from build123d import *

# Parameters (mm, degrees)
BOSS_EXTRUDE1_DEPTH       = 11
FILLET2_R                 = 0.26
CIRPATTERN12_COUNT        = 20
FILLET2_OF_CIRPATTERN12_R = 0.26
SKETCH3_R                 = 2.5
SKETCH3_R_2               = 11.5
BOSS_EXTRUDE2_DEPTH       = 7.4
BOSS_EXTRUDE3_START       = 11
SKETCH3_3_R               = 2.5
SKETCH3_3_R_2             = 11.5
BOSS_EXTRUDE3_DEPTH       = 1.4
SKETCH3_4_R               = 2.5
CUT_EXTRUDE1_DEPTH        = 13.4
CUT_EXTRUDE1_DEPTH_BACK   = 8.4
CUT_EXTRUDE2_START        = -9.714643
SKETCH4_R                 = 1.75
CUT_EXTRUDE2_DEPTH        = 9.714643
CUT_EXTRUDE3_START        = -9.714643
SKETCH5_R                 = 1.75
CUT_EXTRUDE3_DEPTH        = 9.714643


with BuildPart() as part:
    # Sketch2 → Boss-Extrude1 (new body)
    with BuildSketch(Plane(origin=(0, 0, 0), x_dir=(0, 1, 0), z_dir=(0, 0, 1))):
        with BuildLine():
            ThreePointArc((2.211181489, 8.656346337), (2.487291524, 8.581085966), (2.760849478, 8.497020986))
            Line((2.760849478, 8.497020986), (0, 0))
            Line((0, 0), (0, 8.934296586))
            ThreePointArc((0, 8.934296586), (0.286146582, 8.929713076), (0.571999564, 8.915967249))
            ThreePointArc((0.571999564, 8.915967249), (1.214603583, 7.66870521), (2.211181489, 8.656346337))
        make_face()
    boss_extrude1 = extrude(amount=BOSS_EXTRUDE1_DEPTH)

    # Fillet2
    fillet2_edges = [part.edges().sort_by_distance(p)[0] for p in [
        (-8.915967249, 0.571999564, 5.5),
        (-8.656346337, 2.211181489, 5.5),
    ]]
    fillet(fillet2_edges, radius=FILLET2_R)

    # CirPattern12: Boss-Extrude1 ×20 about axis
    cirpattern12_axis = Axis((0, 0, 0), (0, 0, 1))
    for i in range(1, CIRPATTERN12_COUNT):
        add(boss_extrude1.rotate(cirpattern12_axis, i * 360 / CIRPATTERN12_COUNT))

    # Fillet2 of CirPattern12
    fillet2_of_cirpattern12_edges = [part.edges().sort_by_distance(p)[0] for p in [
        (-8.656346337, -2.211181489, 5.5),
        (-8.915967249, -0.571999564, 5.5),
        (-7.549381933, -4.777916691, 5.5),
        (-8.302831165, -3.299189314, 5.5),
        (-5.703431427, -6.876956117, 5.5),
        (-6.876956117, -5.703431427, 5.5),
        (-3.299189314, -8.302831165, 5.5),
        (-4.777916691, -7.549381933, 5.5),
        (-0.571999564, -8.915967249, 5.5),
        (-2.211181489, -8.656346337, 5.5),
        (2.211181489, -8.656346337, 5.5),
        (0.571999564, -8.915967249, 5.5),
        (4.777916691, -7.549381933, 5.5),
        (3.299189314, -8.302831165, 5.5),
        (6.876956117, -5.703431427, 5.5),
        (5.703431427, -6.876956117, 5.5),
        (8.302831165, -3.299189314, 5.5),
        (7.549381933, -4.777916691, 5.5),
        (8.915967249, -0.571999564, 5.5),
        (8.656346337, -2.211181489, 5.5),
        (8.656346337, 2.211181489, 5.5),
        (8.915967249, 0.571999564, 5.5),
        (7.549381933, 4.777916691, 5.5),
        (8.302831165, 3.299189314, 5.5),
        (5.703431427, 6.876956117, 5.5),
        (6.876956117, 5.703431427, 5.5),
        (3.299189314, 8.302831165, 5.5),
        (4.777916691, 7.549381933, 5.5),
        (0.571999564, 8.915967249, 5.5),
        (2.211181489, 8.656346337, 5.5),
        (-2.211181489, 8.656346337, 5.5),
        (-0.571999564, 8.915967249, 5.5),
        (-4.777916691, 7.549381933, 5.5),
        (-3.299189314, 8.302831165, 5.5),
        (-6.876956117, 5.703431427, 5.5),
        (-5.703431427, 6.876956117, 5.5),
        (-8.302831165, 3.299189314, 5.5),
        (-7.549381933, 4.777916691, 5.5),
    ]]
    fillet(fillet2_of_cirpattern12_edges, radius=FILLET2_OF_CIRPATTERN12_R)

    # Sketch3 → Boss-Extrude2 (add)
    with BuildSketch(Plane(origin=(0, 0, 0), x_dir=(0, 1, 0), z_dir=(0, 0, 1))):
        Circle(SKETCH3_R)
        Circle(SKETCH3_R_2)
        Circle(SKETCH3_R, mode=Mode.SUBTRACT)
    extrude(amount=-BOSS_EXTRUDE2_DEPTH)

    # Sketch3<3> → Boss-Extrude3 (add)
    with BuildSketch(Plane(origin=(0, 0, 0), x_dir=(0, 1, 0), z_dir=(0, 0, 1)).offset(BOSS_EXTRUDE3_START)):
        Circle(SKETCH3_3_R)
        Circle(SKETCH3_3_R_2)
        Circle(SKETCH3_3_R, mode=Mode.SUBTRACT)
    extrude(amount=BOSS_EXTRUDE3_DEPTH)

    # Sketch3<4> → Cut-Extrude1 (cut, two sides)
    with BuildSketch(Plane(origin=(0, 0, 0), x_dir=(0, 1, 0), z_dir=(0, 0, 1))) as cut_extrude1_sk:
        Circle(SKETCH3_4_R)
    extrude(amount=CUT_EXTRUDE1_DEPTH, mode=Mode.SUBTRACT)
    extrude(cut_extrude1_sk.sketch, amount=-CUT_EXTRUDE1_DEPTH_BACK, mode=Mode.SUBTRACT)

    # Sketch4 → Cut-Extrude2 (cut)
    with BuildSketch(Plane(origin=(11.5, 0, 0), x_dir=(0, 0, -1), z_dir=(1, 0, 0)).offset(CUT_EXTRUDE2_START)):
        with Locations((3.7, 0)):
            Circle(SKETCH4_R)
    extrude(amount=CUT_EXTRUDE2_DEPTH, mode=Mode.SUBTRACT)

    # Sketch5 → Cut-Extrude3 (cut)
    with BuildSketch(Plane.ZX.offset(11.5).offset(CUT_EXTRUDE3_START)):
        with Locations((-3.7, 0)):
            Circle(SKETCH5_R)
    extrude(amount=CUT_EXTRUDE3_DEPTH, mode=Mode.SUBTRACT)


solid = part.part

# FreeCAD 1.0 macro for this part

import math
import FreeCAD as App
import Part
import Sketcher
from FreeCAD import Vector
Q = App.Units.Quantity


def edges_at(feature, points):
    """Names of the edges that pass closest to the given points."""
    edges = feature.Shape.Edges
    near = lambda p: min(range(len(edges)), key=lambda i: edges[i].distToShape(Part.Vertex(*p))[0])
    return sorted({f"Edge{near(p) + 1}" for p in points})

doc = App.newDocument("Part")
body = doc.addObject("PartDesign::Body", "Body")

# Sketch on XY plane
sketch1 = doc.addObject("Sketcher::SketchObject", "Sketch")
body.addObject(sketch1)
sketch1.AttachmentSupport = (doc.XY_Plane, [""])
sketch1.MapMode = "FlatFace"
sketch1.addGeometry([
    Part.ArcOfCircle(Part.Circle(Vector(0, 0, 0), Vector(0, 0, 1), 8.9), math.radians(162), math.radians(165.67)),  # 0
    Part.ArcOfCircle(Part.Circle(Vector(-8.5, 1.4, 0), Vector(0, 0, 1), 0.9), math.radians(-116), math.radians(98)),  # 1
    Part.ArcOfCircle(Part.Circle(Vector(0, 0, 0), Vector(0, 0, 1), 8.9), math.radians(176.33), math.radians(180)),  # 2
    Part.LineSegment(Vector(-8.9, 0, 0), Vector(0, 0, 0)),  # 3
    Part.LineSegment(Vector(0, 0, 0), Vector(-8.5, 2.8, 0)),  # 4
], False)
sketch1.addConstraint([
    Sketcher.Constraint("Coincident", 0, 2, 1, 2),
    Sketcher.Constraint("Coincident", 1, 1, 2, 1),
    Sketcher.Constraint("Coincident", 2, 2, 3, 1),
    Sketcher.Constraint("Coincident", 3, 2, 4, 1),
    Sketcher.Constraint("Coincident", 4, 2, 0, 1),
    Sketcher.Constraint("Horizontal", 3),
    Sketcher.Constraint("Coincident", 0, 3, -1, 1),
    Sketcher.Constraint("Coincident", 2, 3, -1, 1),
    Sketcher.Constraint("Coincident", 3, 2, -1, 1),
    Sketcher.Constraint("Equal", 0, 2),
    Sketcher.Constraint("Angle", 4, Q("162 deg")),
    Sketcher.Constraint("Radius", 1, 0.87),
    Sketcher.Constraint("DistanceY", -1, 1, 1, 1, 0.572),
    Sketcher.Constraint("Radius", 0, 8.934296),
    Sketcher.Constraint("DistanceY", -1, 1, 1, 3, 1.350702),
])
pad1 = doc.addObject("PartDesign::Pad", "Pad")
body.addObject(pad1)
pad1.Profile = sketch1
pad1.Length = 11
doc.recompute()

fillet = doc.addObject("PartDesign::Fillet", "Fillet")
body.addObject(fillet)
fillet.Base = (pad1, edges_at(pad1, [(-8.916, 0.572, 5.5), (-8.656, 2.211, 5.5)]))
fillet.Radius = 0.26
doc.recompute()

polarpattern = doc.addObject("PartDesign::PolarPattern", "PolarPattern")
body.addObject(polarpattern)
polarpattern.Originals = [pad1]
polarpattern.Axis = (doc.Z_Axis, [""])
polarpattern.Angle = 360
polarpattern.Occurrences = 20
body.Tip = polarpattern
doc.recompute()

fillet2 = doc.addObject("PartDesign::Fillet", "Fillet001")
body.addObject(fillet2)
fillet2.Base = (polarpattern, edges_at(polarpattern, [
    (-8.656, -2.211, 5.5),
    (-8.916, -0.572, 5.5),
    (-7.549, -4.778, 5.5),
    (-8.303, -3.299, 5.5),
    (-5.703, -6.877, 5.5),
    (-6.877, -5.703, 5.5),
    (-3.299, -8.303, 5.5),
    (-4.778, -7.549, 5.5),
    (-0.572, -8.916, 5.5),
    (-2.211, -8.656, 5.5),
    (2.211, -8.656, 5.5),
    (0.572, -8.916, 5.5),
    (4.778, -7.549, 5.5),
    (3.299, -8.303, 5.5),
    (6.877, -5.703, 5.5),
    (5.703, -6.877, 5.5),
    (8.303, -3.299, 5.5),
    (7.549, -4.778, 5.5),
    (8.916, -0.572, 5.5),
    (8.656, -2.211, 5.5),
    (8.656, 2.211, 5.5),
    (8.916, 0.572, 5.5),
    (7.549, 4.778, 5.5),
    (8.303, 3.299, 5.5),
    (5.703, 6.877, 5.5),
    (6.877, 5.703, 5.5),
    (3.299, 8.303, 5.5),
    (4.778, 7.549, 5.5),
    (0.572, 8.916, 5.5),
    (2.211, 8.656, 5.5),
    (-2.211, 8.656, 5.5),
    (-0.572, 8.916, 5.5),
    (-4.778, 7.549, 5.5),
    (-3.299, 8.303, 5.5),
    (-6.877, 5.703, 5.5),
    (-5.703, 6.877, 5.5),
    (-8.303, 3.299, 5.5),
    (-7.549, 4.778, 5.5),
]))
fillet2.Radius = 0.26

# Sketch on XY plane
sketch2 = doc.addObject("Sketcher::SketchObject", "Sketch001")
body.addObject(sketch2)
sketch2.AttachmentSupport = (doc.XY_Plane, [""])
sketch2.MapMode = "FlatFace"
sketch2.addGeometry([
    Part.Circle(Vector(0, 0, 0), Vector(0, 0, 1), 11.5),
    Part.Circle(Vector(0, 0, 0), Vector(0, 0, 1), 2.5),
], False)
sketch2.addConstraint([
    Sketcher.Constraint("Coincident", 0, 3, -1, 1),
    Sketcher.Constraint("Coincident", 1, 3, -1, 1),
    Sketcher.Constraint("Diameter", 0, 23.0),
    Sketcher.Constraint("Diameter", 1, 5.0),
])
pad2 = doc.addObject("PartDesign::Pad", "Pad001")
body.addObject(pad2)
pad2.Profile = sketch2
pad2.Length = 7.4
pad2.Reversed = True

# Sketch on XY plane
sketch3 = doc.addObject("Sketcher::SketchObject", "Sketch002")
body.addObject(sketch3)
sketch3.AttachmentSupport = (doc.XY_Plane, [""])
sketch3.MapMode = "FlatFace"
sketch3.AttachmentOffset = App.Placement(Vector(0, 0, 11), App.Rotation())
sketch3.addGeometry([
    Part.Circle(Vector(0, 0, 0), Vector(0, 0, 1), 11.5),
    Part.Circle(Vector(0, 0, 0), Vector(0, 0, 1), 2.5),
], False)
sketch3.addConstraint([
    Sketcher.Constraint("Coincident", 0, 3, -1, 1),
    Sketcher.Constraint("Coincident", 1, 3, -1, 1),
    Sketcher.Constraint("Diameter", 0, 23.0),
    Sketcher.Constraint("Diameter", 1, 5.0),
])
pad3 = doc.addObject("PartDesign::Pad", "Pad002")
body.addObject(pad3)
pad3.Profile = sketch3
pad3.Length = 1.4

# Sketch on XY plane
sketch4 = doc.addObject("Sketcher::SketchObject", "Sketch003")
body.addObject(sketch4)
sketch4.AttachmentSupport = (doc.XY_Plane, [""])
sketch4.MapMode = "FlatFace"
sketch4.addGeometry(Part.Circle(Vector(0, 0, 0), Vector(0, 0, 1), 2.5), False)
sketch4.addConstraint([
    Sketcher.Constraint("Coincident", 0, 3, -1, 1),
    Sketcher.Constraint("Diameter", 0, 5.0),
])
pocket1 = doc.addObject("PartDesign::Pocket", "Pocket")
body.addObject(pocket1)
pocket1.Profile = sketch4
pocket1.Type = "ThroughAll"
pocket1.Midplane = True

# Sketch on YZ plane
sketch5 = doc.addObject("Sketcher::SketchObject", "Sketch004")
body.addObject(sketch5)
sketch5.AttachmentSupport = (doc.YZ_Plane, [""])
sketch5.MapMode = "FlatFace"
sketch5.AttachmentOffset = App.Placement(Vector(0, 0, 1.785357), App.Rotation())
sketch5.addGeometry(Part.Circle(Vector(0, -3.7, 0), Vector(0, 0, 1), 1.8), False)
sketch5.addConstraint([
    Sketcher.Constraint("PointOnObject", 0, 3, -2),
    Sketcher.Constraint("Diameter", 0, 3.5),
    Sketcher.Constraint("DistanceY", 0, 3, -1, 1, 3.7),
])
pocket2 = doc.addObject("PartDesign::Pocket", "Pocket001")
body.addObject(pocket2)
pocket2.Profile = sketch5
pocket2.Length = 9.714643
pocket2.Reversed = True

# Sketch on XZ plane
sketch6 = doc.addObject("Sketcher::SketchObject", "Sketch005")
body.addObject(sketch6)
sketch6.AttachmentSupport = (doc.XZ_Plane, [""])
sketch6.MapMode = "FlatFace"
sketch6.AttachmentOffset = App.Placement(Vector(0, 0, -1.785357), App.Rotation())
sketch6.addGeometry(Part.Circle(Vector(0, -3.7, 0), Vector(0, 0, 1), 1.8), False)
sketch6.addConstraint([
    Sketcher.Constraint("PointOnObject", 0, 3, -2),
    Sketcher.Constraint("Diameter", 0, 3.5),
    Sketcher.Constraint("DistanceY", 0, 3, -1, 1, 3.7),
])
pocket3 = doc.addObject("PartDesign::Pocket", "Pocket002")
body.addObject(pocket3)
pocket3.Profile = sketch6
pocket3.Length = 9.714643

doc.recompute()
